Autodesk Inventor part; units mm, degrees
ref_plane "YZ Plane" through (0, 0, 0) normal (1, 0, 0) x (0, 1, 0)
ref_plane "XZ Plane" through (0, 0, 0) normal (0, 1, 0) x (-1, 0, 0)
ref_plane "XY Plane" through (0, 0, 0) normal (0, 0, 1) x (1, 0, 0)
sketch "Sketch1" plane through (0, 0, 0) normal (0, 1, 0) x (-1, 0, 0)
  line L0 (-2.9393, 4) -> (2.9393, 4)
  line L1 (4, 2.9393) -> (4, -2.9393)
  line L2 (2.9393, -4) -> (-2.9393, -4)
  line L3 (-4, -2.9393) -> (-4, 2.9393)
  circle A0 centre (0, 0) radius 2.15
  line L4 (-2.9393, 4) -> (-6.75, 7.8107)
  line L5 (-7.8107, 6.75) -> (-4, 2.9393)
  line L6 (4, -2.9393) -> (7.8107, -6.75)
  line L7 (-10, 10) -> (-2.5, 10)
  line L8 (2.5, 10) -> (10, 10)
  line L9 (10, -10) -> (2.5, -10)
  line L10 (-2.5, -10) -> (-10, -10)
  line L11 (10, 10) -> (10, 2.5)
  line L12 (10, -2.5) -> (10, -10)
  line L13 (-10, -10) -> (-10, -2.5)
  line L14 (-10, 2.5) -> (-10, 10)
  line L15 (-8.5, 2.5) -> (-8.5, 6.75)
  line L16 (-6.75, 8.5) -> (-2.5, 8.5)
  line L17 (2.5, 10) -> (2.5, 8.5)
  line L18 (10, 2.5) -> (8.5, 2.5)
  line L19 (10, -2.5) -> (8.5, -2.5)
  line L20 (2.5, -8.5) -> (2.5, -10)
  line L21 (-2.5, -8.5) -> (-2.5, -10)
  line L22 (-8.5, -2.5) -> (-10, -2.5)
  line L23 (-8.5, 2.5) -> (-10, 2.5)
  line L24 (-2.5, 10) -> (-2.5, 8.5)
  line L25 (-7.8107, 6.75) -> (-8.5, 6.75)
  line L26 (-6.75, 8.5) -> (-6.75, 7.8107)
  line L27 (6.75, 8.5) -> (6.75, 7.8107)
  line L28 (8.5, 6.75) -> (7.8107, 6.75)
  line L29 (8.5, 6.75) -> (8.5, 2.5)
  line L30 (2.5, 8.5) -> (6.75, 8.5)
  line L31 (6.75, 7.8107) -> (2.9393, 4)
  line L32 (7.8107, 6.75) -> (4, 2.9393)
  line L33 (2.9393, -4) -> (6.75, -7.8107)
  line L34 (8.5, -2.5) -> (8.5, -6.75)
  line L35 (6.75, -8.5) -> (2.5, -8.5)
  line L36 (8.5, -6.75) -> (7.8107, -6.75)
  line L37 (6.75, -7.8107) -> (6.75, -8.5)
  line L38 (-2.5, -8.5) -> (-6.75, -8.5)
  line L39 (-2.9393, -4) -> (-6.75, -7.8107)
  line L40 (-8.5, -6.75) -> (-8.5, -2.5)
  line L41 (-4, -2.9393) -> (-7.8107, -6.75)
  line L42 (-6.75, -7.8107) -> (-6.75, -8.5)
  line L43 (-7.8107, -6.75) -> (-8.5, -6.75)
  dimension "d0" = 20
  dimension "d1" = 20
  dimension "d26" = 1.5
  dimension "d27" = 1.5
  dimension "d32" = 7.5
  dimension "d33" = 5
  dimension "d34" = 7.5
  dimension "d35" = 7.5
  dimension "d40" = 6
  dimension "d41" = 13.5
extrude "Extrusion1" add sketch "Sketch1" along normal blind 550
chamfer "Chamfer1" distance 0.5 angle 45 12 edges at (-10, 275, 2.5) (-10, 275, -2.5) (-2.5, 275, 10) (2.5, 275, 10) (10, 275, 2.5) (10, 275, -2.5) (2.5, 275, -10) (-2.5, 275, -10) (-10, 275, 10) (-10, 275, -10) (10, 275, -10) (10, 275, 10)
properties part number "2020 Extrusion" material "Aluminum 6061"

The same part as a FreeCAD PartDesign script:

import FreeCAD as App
import Part
import Sketcher


def edges_at(feature, points):
    """Names of the edges that pass closest to the given points."""
    edges = feature.Shape.Edges
    near = lambda p: min(range(len(edges)), key=lambda i: edges[i].distToShape(Part.Vertex(*p))[0])
    return sorted({f"Edge{near(p) + 1}" for p in points})

doc = App.newDocument("Part")
body = doc.addObject("PartDesign::Body", "Body")

sketch1 = body.newObject("Sketcher::SketchObject", "Sketch")
sketch1.AttachmentSupport = (doc.getObject("XZ_Plane"), [""])
sketch1.MapMode = "FlatFace"
sketch1.addGeometry(Part.LineSegment(App.Vector(-2.9393, 4, 0), App.Vector(2.9393, 4, 0)), False)
sketch1.addGeometry(Part.LineSegment(App.Vector(2.9393, 4, 0), App.Vector(6.75, 7.8107, 0)), False)
sketch1.addGeometry(Part.LineSegment(App.Vector(6.75, 7.8107, 0), App.Vector(6.75, 8.5, 0)), False)
sketch1.addGeometry(Part.LineSegment(App.Vector(6.75, 8.5, 0), App.Vector(2.5, 8.5, 0)), False)
sketch1.addGeometry(Part.LineSegment(App.Vector(2.5, 8.5, 0), App.Vector(2.5, 10, 0)), False)
sketch1.addGeometry(Part.LineSegment(App.Vector(2.5, 10, 0), App.Vector(10, 10, 0)), False)
sketch1.addGeometry(Part.LineSegment(App.Vector(10, 10, 0), App.Vector(10, 2.5, 0)), False)
sketch1.addGeometry(Part.LineSegment(App.Vector(10, 2.5, 0), App.Vector(8.5, 2.5, 0)), False)
sketch1.addGeometry(Part.LineSegment(App.Vector(8.5, 2.5, 0), App.Vector(8.5, 6.75, 0)), False)
sketch1.addGeometry(Part.LineSegment(App.Vector(8.5, 6.75, 0), App.Vector(7.8107, 6.75, 0)), False)
sketch1.addGeometry(Part.LineSegment(App.Vector(7.8107, 6.75, 0), App.Vector(4, 2.9393, 0)), False)
sketch1.addGeometry(Part.LineSegment(App.Vector(4, 2.9393, 0), App.Vector(4, -2.9393, 0)), False)
sketch1.addGeometry(Part.LineSegment(App.Vector(4, -2.9393, 0), App.Vector(7.8107, -6.75, 0)), False)
sketch1.addGeometry(Part.LineSegment(App.Vector(7.8107, -6.75, 0), App.Vector(8.5, -6.75, 0)), False)
sketch1.addGeometry(Part.LineSegment(App.Vector(8.5, -6.75, 0), App.Vector(8.5, -2.5, 0)), False)
sketch1.addGeometry(Part.LineSegment(App.Vector(8.5, -2.5, 0), App.Vector(10, -2.5, 0)), False)
sketch1.addGeometry(Part.LineSegment(App.Vector(10, -2.5, 0), App.Vector(10, -10, 0)), False)
sketch1.addGeometry(Part.LineSegment(App.Vector(10, -10, 0), App.Vector(2.5, -10, 0)), False)
sketch1.addGeometry(Part.LineSegment(App.Vector(2.5, -10, 0), App.Vector(2.5, -8.5, 0)), False)
sketch1.addGeometry(Part.LineSegment(App.Vector(2.5, -8.5, 0), App.Vector(6.75, -8.5, 0)), False)
sketch1.addGeometry(Part.LineSegment(App.Vector(6.75, -8.5, 0), App.Vector(6.75, -7.8107, 0)), False)
sketch1.addGeometry(Part.LineSegment(App.Vector(6.75, -7.8107, 0), App.Vector(2.9393, -4, 0)), False)
sketch1.addGeometry(Part.LineSegment(App.Vector(2.9393, -4, 0), App.Vector(-2.9393, -4, 0)), False)
sketch1.addGeometry(Part.LineSegment(App.Vector(-2.9393, -4, 0), App.Vector(-6.75, -7.8107, 0)), False)
sketch1.addGeometry(Part.LineSegment(App.Vector(-6.75, -7.8107, 0), App.Vector(-6.75, -8.5, 0)), False)
sketch1.addGeometry(Part.LineSegment(App.Vector(-6.75, -8.5, 0), App.Vector(-2.5, -8.5, 0)), False)
sketch1.addGeometry(Part.LineSegment(App.Vector(-2.5, -8.5, 0), App.Vector(-2.5, -10, 0)), False)
sketch1.addGeometry(Part.LineSegment(App.Vector(-2.5, -10, 0), App.Vector(-10, -10, 0)), False)
sketch1.addGeometry(Part.LineSegment(App.Vector(-10, -10, 0), App.Vector(-10, -2.5, 0)), False)
sketch1.addGeometry(Part.LineSegment(App.Vector(-10, -2.5, 0), App.Vector(-8.5, -2.5, 0)), False)
sketch1.addGeometry(Part.LineSegment(App.Vector(-8.5, -2.5, 0), App.Vector(-8.5, -6.75, 0)), False)
sketch1.addGeometry(Part.LineSegment(App.Vector(-8.5, -6.75, 0), App.Vector(-7.8107, -6.75, 0)), False)
sketch1.addGeometry(Part.LineSegment(App.Vector(-7.8107, -6.75, 0), App.Vector(-4, -2.9393, 0)), False)
sketch1.addGeometry(Part.LineSegment(App.Vector(-4, -2.9393, 0), App.Vector(-4, 2.9393, 0)), False)
sketch1.addGeometry(Part.LineSegment(App.Vector(-4, 2.9393, 0), App.Vector(-7.8107, 6.75, 0)), False)
sketch1.addGeometry(Part.LineSegment(App.Vector(-7.8107, 6.75, 0), App.Vector(-8.5, 6.75, 0)), False)
sketch1.addGeometry(Part.LineSegment(App.Vector(-8.5, 6.75, 0), App.Vector(-8.5, 2.5, 0)), False)
sketch1.addGeometry(Part.LineSegment(App.Vector(-8.5, 2.5, 0), App.Vector(-10, 2.5, 0)), False)
sketch1.addGeometry(Part.LineSegment(App.Vector(-10, 2.5, 0), App.Vector(-10, 10, 0)), False)
sketch1.addGeometry(Part.LineSegment(App.Vector(-10, 10, 0), App.Vector(-2.5, 10, 0)), False)
sketch1.addGeometry(Part.LineSegment(App.Vector(-2.5, 10, 0), App.Vector(-2.5, 8.5, 0)), False)
sketch1.addGeometry(Part.LineSegment(App.Vector(-2.5, 8.5, 0), App.Vector(-6.75, 8.5, 0)), False)
sketch1.addGeometry(Part.LineSegment(App.Vector(-6.75, 8.5, 0), App.Vector(-6.75, 7.8107, 0)), False)
sketch1.addGeometry(Part.LineSegment(App.Vector(-6.75, 7.8107, 0), App.Vector(-2.9393, 4, 0)), False)
sketch1.addGeometry(Part.Circle(App.Vector(0, 0, 0), App.Vector(0, 0, 1), 2.15), False)
sketch1.addConstraint(Sketcher.Constraint("Coincident", 0, 2, 1, 1))
sketch1.addConstraint(Sketcher.Constraint("Coincident", 1, 2, 2, 1))
sketch1.addConstraint(Sketcher.Constraint("Coincident", 2, 2, 3, 1))
sketch1.addConstraint(Sketcher.Constraint("Coincident", 3, 2, 4, 1))
sketch1.addConstraint(Sketcher.Constraint("Coincident", 4, 2, 5, 1))
sketch1.addConstraint(Sketcher.Constraint("Coincident", 5, 2, 6, 1))
sketch1.addConstraint(Sketcher.Constraint("Coincident", 6, 2, 7, 1))
sketch1.addConstraint(Sketcher.Constraint("Coincident", 7, 2, 8, 1))
sketch1.addConstraint(Sketcher.Constraint("Coincident", 8, 2, 9, 1))
sketch1.addConstraint(Sketcher.Constraint("Coincident", 9, 2, 10, 1))
sketch1.addConstraint(Sketcher.Constraint("Coincident", 10, 2, 11, 1))
sketch1.addConstraint(Sketcher.Constraint("Coincident", 11, 2, 12, 1))
sketch1.addConstraint(Sketcher.Constraint("Coincident", 12, 2, 13, 1))
sketch1.addConstraint(Sketcher.Constraint("Coincident", 13, 2, 14, 1))
sketch1.addConstraint(Sketcher.Constraint("Coincident", 14, 2, 15, 1))
sketch1.addConstraint(Sketcher.Constraint("Coincident", 15, 2, 16, 1))
sketch1.addConstraint(Sketcher.Constraint("Coincident", 16, 2, 17, 1))
sketch1.addConstraint(Sketcher.Constraint("Coincident", 17, 2, 18, 1))
sketch1.addConstraint(Sketcher.Constraint("Coincident", 18, 2, 19, 1))
sketch1.addConstraint(Sketcher.Constraint("Coincident", 19, 2, 20, 1))
sketch1.addConstraint(Sketcher.Constraint("Coincident", 20, 2, 21, 1))
sketch1.addConstraint(Sketcher.Constraint("Coincident", 21, 2, 22, 1))
sketch1.addConstraint(Sketcher.Constraint("Coincident", 22, 2, 23, 1))
sketch1.addConstraint(Sketcher.Constraint("Coincident", 23, 2, 24, 1))
sketch1.addConstraint(Sketcher.Constraint("Coincident", 24, 2, 25, 1))
sketch1.addConstraint(Sketcher.Constraint("Coincident", 25, 2, 26, 1))
sketch1.addConstraint(Sketcher.Constraint("Coincident", 26, 2, 27, 1))
sketch1.addConstraint(Sketcher.Constraint("Coincident", 27, 2, 28, 1))
sketch1.addConstraint(Sketcher.Constraint("Coincident", 28, 2, 29, 1))
sketch1.addConstraint(Sketcher.Constraint("Coincident", 29, 2, 30, 1))
sketch1.addConstraint(Sketcher.Constraint("Coincident", 30, 2, 31, 1))
sketch1.addConstraint(Sketcher.Constraint("Coincident", 31, 2, 32, 1))
sketch1.addConstraint(Sketcher.Constraint("Coincident", 32, 2, 33, 1))
sketch1.addConstraint(Sketcher.Constraint("Coincident", 33, 2, 34, 1))
sketch1.addConstraint(Sketcher.Constraint("Coincident", 34, 2, 35, 1))
sketch1.addConstraint(Sketcher.Constraint("Coincident", 35, 2, 36, 1))
sketch1.addConstraint(Sketcher.Constraint("Coincident", 36, 2, 37, 1))
sketch1.addConstraint(Sketcher.Constraint("Coincident", 37, 2, 38, 1))
sketch1.addConstraint(Sketcher.Constraint("Coincident", 38, 2, 39, 1))
sketch1.addConstraint(Sketcher.Constraint("Coincident", 39, 2, 40, 1))
sketch1.addConstraint(Sketcher.Constraint("Coincident", 40, 2, 41, 1))
sketch1.addConstraint(Sketcher.Constraint("Coincident", 41, 2, 42, 1))
sketch1.addConstraint(Sketcher.Constraint("Coincident", 42, 2, 43, 1))
sketch1.addConstraint(Sketcher.Constraint("Coincident", 43, 2, 0, 1))
sketch1.addConstraint(Sketcher.Constraint("Horizontal", 0))
sketch1.addConstraint(Sketcher.Constraint("Vertical", 2))
sketch1.addConstraint(Sketcher.Constraint("Horizontal", 3))
sketch1.addConstraint(Sketcher.Constraint("Vertical", 4))
sketch1.addConstraint(Sketcher.Constraint("Horizontal", 5))
sketch1.addConstraint(Sketcher.Constraint("Vertical", 6))
sketch1.addConstraint(Sketcher.Constraint("Horizontal", 7))
sketch1.addConstraint(Sketcher.Constraint("Vertical", 8))
sketch1.addConstraint(Sketcher.Constraint("Horizontal", 9))
sketch1.addConstraint(Sketcher.Constraint("Vertical", 11))
sketch1.addConstraint(Sketcher.Constraint("Horizontal", 13))
sketch1.addConstraint(Sketcher.Constraint("Vertical", 14))
sketch1.addConstraint(Sketcher.Constraint("Horizontal", 15))
sketch1.addConstraint(Sketcher.Constraint("Vertical", 16))
sketch1.addConstraint(Sketcher.Constraint("Horizontal", 17))
sketch1.addConstraint(Sketcher.Constraint("Vertical", 18))
sketch1.addConstraint(Sketcher.Constraint("Horizontal", 19))
sketch1.addConstraint(Sketcher.Constraint("Vertical", 20))
sketch1.addConstraint(Sketcher.Constraint("Horizontal", 22))
sketch1.addConstraint(Sketcher.Constraint("Vertical", 24))
sketch1.addConstraint(Sketcher.Constraint("Horizontal", 25))
sketch1.addConstraint(Sketcher.Constraint("Vertical", 26))
sketch1.addConstraint(Sketcher.Constraint("Horizontal", 27))
sketch1.addConstraint(Sketcher.Constraint("Vertical", 28))
sketch1.addConstraint(Sketcher.Constraint("Horizontal", 29))
sketch1.addConstraint(Sketcher.Constraint("Vertical", 30))
sketch1.addConstraint(Sketcher.Constraint("Horizontal", 31))
sketch1.addConstraint(Sketcher.Constraint("Vertical", 33))
sketch1.addConstraint(Sketcher.Constraint("Horizontal", 35))
sketch1.addConstraint(Sketcher.Constraint("Vertical", 36))
sketch1.addConstraint(Sketcher.Constraint("Horizontal", 37))
sketch1.addConstraint(Sketcher.Constraint("Vertical", 38))
sketch1.addConstraint(Sketcher.Constraint("Horizontal", 39))
sketch1.addConstraint(Sketcher.Constraint("Vertical", 40))
sketch1.addConstraint(Sketcher.Constraint("Horizontal", 41))
sketch1.addConstraint(Sketcher.Constraint("Vertical", 42))
sketch1.addConstraint(Sketcher.Constraint("Coincident", 44, 3, -1, 1))
sketch1.addConstraint(Sketcher.Constraint("Symmetric", 0, 2, 22, 2, -1, 1))
sketch1.addConstraint(Sketcher.Constraint("Symmetric", 1, 2, 23, 2, -1, 1))
sketch1.addConstraint(Sketcher.Constraint("Symmetric", 3, 2, 25, 2, -1, 1))
sketch1.addConstraint(Sketcher.Constraint("Symmetric", 5, 2, 27, 2, -1, 1))
sketch1.addConstraint(Sketcher.Constraint("Symmetric", 7, 2, 29, 2, -1, 1))
sketch1.addConstraint(Sketcher.Constraint("Symmetric", 9, 2, 31, 2, -1, 1))
sketch1.addConstraint(Sketcher.Constraint("Symmetric", 10, 2, 32, 2, -1, 1))
sketch1.addConstraint(Sketcher.Constraint("Symmetric", 12, 2, 34, 2, -1, 1))
sketch1.addConstraint(Sketcher.Constraint("Symmetric", 14, 2, 36, 2, -1, 1))
sketch1.addConstraint(Sketcher.Constraint("Symmetric", 16, 2, 38, 2, -1, 1))
sketch1.addConstraint(Sketcher.Constraint("Symmetric", 18, 2, 40, 2, -1, 1))
sketch1.addConstraint(Sketcher.Constraint("Symmetric", 20, 2, 42, 2, -1, 1))
sketch1.addConstraint(Sketcher.Constraint("Symmetric", 20, 2, 23, 2, -2))
sketch1.addConstraint(Sketcher.Constraint("Symmetric", 18, 2, 25, 2, -2))
sketch1.addConstraint(Sketcher.Constraint("Symmetric", 16, 2, 27, 2, -2))
sketch1.addConstraint(Sketcher.Constraint("Symmetric", 14, 2, 29, 2, -2))
sketch1.addConstraint(Sketcher.Constraint("Symmetric", 12, 2, 31, 2, -2))
sketch1.addConstraint(Sketcher.Constraint("Parallel", 1, 10))
sketch1.addConstraint(Sketcher.Constraint("Perpendicular", 10, 12))
sketch1.addConstraint(Sketcher.Constraint("Parallel", 12, 21))
sketch1.addConstraint(Sketcher.Constraint("Perpendicular", 32, 34))
sketch1.addConstraint(Sketcher.Constraint("Parallel", 34, 43))
sketch1.addConstraint(Sketcher.Constraint("Horizontal", 11, 2, 32, 2))
sketch1.addConstraint(Sketcher.Constraint("Equal", 35, 2))
sketch1.addConstraint(Sketcher.Constraint("Equal", 37, 4))
sketch1.addConstraint(Sketcher.Constraint("Equal", 39, 6))
sketch1.addConstraint(Sketcher.Constraint("Equal", 41, 8))
sketch1.addConstraint(Sketcher.Constraint("Equal", 22, 11))
sketch1.addConstraint(Sketcher.Constraint("Equal", 1, 10))
sketch1.addConstraint(Sketcher.Constraint("DistanceX", 5, 1, 5, 2, 7.5))
sketch1.addConstraint(Sketcher.Constraint("DistanceX", 7, 2, 7, 1, 1.5))
sketch1.addConstraint(Sketcher.Constraint("DistanceY", 0, 2, 4, 2, 6.0))
sketch1.addConstraint(Sketcher.Constraint("DistanceY", 14, 2, 7, 2, 5.0))
sketch1.addConstraint(Sketcher.Constraint("Diameter", 44, 4.3))
sketch1.addConstraint(Sketcher.Constraint("DistanceX", 3, 2, 3, 1, 4.25))
sketch1.addConstraint(Sketcher.Constraint("DistanceX", 0, 1, 0, 2, 5.8786))
pad1 = body.newObject("PartDesign::Pad", "Pad")
pad1.Profile = sketch1
pad1.Length = 550
pad1.Reversed = True
doc.recompute()

chamfer = body.newObject("PartDesign::Chamfer", "Chamfer")
chamfer.Base = (pad1, edges_at(pad1, [
    (-10, 275, 2.5),
    (-10, 275, -2.5),
    (-2.5, 275, 10),
    (2.5, 275, 10),
    (10, 275, 2.5),
    (10, 275, -2.5),
    (2.5, 275, -10),
    (-2.5, 275, -10),
    (-10, 275, 10),
    (-10, 275, -10),
    (10, 275, -10),
    (10, 275, 10),
]))
chamfer.Size = 0.5

doc.recompute()
